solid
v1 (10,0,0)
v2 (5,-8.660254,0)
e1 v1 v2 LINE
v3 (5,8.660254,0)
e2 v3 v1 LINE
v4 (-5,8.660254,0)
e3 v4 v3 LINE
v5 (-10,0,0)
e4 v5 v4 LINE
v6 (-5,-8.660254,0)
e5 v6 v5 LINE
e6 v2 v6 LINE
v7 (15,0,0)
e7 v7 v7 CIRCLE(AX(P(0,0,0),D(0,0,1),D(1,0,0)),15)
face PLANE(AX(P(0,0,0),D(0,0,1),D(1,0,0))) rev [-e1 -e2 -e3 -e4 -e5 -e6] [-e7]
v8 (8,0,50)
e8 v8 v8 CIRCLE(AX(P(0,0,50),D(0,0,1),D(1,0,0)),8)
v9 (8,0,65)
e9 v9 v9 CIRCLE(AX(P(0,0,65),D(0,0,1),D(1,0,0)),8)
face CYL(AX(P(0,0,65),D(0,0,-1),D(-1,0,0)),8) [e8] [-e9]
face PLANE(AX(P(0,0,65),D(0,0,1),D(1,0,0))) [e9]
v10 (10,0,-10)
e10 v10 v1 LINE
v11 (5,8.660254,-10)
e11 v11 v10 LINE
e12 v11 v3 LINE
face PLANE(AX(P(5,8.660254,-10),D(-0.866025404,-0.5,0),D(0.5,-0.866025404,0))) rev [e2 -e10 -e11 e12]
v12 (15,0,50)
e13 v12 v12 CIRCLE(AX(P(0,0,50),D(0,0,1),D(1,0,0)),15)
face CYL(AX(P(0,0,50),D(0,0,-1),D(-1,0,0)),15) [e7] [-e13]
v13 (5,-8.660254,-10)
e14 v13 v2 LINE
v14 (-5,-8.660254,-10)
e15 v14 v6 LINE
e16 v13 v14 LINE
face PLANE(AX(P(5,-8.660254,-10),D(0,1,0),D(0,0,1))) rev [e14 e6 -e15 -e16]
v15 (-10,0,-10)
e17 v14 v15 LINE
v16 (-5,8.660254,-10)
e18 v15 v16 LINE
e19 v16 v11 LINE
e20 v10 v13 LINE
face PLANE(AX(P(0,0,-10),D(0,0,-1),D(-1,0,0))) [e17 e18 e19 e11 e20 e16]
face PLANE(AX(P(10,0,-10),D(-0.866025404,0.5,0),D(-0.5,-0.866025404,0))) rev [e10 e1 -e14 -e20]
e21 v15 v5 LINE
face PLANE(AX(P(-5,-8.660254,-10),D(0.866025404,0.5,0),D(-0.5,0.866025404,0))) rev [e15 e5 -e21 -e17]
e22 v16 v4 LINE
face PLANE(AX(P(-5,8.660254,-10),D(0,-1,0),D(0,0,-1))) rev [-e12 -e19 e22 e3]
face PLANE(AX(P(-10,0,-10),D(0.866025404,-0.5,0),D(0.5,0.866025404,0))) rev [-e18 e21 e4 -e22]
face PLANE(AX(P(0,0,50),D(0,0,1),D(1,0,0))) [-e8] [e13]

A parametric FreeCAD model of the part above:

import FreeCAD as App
import Part
import Sketcher

V = App.Vector
Q = App.Units.Quantity


def add_polygon(sketch, points):
    """Adds a closed chain of lines whose ends are joined by coincident constraints."""
    first, n = sketch.GeometryCount, len(points)
    for a, b in zip(points, points[1:] + points[:1]):
        sketch.addGeometry(Part.LineSegment(App.Vector(*a, 0), App.Vector(*b, 0)), False)
    for i in range(n):
        sketch.addConstraint(Sketcher.Constraint("Coincident", first + i, 2, first + (i + 1) % n, 1))

doc = App.newDocument("Part")
body = doc.addObject("PartDesign::Body", "Body")

sketch1 = body.newObject("Sketcher::SketchObject", "Sketch")
sketch1.AttachmentSupport = (doc.getObject("XY_Plane"), [""])
sketch1.MapMode = "FlatFace"
sketch1.addGeometry(Part.Circle(V(0, 0, 0), V(0, 0, 1), 15), False)
sketch1.addConstraint(Sketcher.Constraint("Coincident", 0, 3, -1, 1))
sketch1.addConstraint(Sketcher.Constraint("Diameter", 0, 30.0))
pad1 = body.newObject("PartDesign::Pad", "Pad")
pad1.Profile = sketch1
pad1.Length = 50

sketch2 = body.newObject("Sketcher::SketchObject", "Sketch001")
sketch2.AttachmentSupport = (doc.getObject("XY_Plane"), [""])
sketch2.MapMode = "FlatFace"
sketch2.AttachmentOffset = App.Placement(V(0, 0, 50), App.Rotation())
sketch2.addGeometry(Part.Circle(V(0, 0, 0), V(0, 0, 1), 8), False)
sketch2.addConstraint(Sketcher.Constraint("Coincident", 0, 3, -1, 1))
sketch2.addConstraint(Sketcher.Constraint("Diameter", 0, 16.0))
pad2 = body.newObject("PartDesign::Pad", "Pad001")
pad2.Profile = sketch2
pad2.Length = 15

sketch3 = body.newObject("Sketcher::SketchObject", "Sketch002")
sketch3.AttachmentSupport = (doc.getObject("XY_Plane"), [""])
sketch3.MapMode = "FlatFace"
add_polygon(sketch3, [(-10, 0), (-5, 9), (5, 9), (10, 0), (5, -9), (-5, -9)])
sketch3.addConstraint(Sketcher.Constraint("Horizontal", 1))
sketch3.addConstraint(Sketcher.Constraint("Horizontal", 4))
sketch3.addConstraint(Sketcher.Constraint("Symmetric", 0, 2, 3, 2, -1, 1))
sketch3.addConstraint(Sketcher.Constraint("Symmetric", 2, 2, 5, 2, -1, 1))
sketch3.addConstraint(Sketcher.Constraint("PointOnObject", 2, 2, -1))
sketch3.addConstraint(Sketcher.Constraint("Parallel", 2, 5))
sketch3.addConstraint(Sketcher.Constraint("Vertical", 1, 2, 3, 2))
sketch3.addConstraint(Sketcher.Constraint("DistanceX", 1, 1, 1, 2, 10.0))
sketch3.addConstraint(Sketcher.Constraint("Angle", 0, Q("60 deg")))
sketch3.addConstraint(Sketcher.Constraint("Distance", 0, 10.0))
pad3 = body.newObject("PartDesign::Pad", "Pad002")
pad3.Profile = sketch3
pad3.Length = 10
pad3.Reversed = True

doc.recompute()
